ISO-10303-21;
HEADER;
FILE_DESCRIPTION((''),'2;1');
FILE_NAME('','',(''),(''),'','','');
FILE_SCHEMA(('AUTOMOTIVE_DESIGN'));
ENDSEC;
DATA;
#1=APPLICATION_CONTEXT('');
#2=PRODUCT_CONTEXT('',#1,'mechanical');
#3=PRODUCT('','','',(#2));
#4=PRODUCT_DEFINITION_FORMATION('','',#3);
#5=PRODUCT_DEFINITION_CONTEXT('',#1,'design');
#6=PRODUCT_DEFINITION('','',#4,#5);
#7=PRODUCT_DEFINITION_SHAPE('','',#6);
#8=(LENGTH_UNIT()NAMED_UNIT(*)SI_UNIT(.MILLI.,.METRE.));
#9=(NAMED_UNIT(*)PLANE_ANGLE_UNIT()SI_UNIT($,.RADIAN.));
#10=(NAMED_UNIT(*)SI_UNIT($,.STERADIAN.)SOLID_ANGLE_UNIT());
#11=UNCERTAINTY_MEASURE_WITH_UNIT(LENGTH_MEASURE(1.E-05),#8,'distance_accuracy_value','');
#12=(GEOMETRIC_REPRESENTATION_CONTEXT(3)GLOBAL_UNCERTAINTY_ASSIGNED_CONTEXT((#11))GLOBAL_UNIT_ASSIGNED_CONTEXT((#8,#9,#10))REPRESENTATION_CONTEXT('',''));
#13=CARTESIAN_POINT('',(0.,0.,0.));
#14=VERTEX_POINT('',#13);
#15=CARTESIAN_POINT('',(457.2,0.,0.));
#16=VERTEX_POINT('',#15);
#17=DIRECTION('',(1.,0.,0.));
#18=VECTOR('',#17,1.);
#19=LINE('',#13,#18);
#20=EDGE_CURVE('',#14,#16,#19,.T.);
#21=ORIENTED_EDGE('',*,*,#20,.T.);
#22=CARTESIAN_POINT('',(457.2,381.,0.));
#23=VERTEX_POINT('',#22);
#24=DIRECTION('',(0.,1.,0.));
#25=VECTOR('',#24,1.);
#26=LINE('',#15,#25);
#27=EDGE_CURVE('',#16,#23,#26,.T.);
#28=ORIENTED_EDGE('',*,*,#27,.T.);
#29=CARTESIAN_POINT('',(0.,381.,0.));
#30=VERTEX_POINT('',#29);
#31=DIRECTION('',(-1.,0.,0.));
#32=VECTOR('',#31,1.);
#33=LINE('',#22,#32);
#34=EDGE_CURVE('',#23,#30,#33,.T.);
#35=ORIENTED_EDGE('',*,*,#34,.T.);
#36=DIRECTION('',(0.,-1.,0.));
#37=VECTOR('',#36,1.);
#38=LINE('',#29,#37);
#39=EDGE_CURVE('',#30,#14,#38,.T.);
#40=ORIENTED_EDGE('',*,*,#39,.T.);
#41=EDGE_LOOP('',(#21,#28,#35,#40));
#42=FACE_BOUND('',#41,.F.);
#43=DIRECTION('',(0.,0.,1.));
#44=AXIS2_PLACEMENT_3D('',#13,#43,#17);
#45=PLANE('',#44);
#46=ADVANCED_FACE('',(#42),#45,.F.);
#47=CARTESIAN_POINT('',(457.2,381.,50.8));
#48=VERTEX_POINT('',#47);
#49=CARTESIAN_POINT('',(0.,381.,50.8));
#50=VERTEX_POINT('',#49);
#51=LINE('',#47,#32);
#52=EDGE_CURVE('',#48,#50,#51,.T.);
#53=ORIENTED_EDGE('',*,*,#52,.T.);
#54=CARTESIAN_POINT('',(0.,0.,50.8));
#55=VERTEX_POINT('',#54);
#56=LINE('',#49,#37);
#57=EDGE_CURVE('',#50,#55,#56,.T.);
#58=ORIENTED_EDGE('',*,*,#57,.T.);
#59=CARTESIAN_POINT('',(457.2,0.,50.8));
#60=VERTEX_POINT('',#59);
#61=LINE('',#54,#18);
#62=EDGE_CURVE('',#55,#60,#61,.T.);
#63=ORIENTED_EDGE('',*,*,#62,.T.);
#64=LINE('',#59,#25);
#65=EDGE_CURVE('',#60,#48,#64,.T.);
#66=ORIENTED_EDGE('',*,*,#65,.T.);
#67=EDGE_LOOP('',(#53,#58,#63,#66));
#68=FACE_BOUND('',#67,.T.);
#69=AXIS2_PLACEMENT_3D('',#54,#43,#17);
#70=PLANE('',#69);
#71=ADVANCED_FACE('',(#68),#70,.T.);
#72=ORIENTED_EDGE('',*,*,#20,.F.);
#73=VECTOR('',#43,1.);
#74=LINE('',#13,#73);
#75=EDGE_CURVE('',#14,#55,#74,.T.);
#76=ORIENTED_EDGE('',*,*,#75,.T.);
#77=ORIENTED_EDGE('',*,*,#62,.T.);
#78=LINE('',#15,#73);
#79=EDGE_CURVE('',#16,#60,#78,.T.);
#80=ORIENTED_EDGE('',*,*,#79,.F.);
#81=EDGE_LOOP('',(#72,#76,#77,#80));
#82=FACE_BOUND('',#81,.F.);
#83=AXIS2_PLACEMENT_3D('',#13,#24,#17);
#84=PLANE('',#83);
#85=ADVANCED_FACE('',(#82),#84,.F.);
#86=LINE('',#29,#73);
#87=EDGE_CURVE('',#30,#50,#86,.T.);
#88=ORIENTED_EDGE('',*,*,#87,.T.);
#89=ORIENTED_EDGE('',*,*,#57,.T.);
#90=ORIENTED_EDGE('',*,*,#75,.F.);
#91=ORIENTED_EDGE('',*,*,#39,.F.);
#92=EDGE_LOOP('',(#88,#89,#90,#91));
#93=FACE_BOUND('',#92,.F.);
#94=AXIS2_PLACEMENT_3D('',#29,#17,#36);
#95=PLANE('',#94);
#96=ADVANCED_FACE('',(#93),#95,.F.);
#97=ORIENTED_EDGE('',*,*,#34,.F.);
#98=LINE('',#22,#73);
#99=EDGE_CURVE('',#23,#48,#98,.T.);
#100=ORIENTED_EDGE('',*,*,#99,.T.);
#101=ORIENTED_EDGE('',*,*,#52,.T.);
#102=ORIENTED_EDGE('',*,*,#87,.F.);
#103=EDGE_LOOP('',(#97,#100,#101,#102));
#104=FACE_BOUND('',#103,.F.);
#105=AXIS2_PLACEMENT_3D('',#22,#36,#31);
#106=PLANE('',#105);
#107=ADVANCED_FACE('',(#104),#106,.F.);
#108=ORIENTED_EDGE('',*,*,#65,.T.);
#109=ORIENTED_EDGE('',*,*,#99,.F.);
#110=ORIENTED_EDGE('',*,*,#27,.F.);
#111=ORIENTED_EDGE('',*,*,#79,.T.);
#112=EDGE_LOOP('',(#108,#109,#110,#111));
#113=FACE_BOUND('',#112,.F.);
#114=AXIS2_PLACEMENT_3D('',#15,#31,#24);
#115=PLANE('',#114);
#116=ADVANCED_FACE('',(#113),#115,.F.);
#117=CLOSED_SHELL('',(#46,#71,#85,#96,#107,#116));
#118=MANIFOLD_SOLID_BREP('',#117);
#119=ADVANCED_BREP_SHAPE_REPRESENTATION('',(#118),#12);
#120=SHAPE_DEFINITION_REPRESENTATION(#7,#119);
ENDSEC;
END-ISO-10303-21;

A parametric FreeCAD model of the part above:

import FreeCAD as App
import Part
import Sketcher
from FreeCAD import Vector
Q = App.Units.Quantity

doc = App.newDocument("Part")
params = doc.addObject("Spreadsheet::Sheet", "Params")
for row, (alias, value) in enumerate([
    ("sketch1_width", "18 in"),
    ("sketch1_height", "15 in"),
    ("pad1_length", "2 in"),
], start=1):
    params.set(f"A{row}", alias)
    params.set(f"B{row}", "=" + value)
    params.setAlias(f"B{row}", alias)

body = doc.addObject("PartDesign::Body", "Body")

# Sketch on XY plane
sketch1 = doc.addObject("Sketcher::SketchObject", "Sketch")
body.addObject(sketch1)
sketch1.AttachmentSupport = (doc.XY_Plane, [""])
sketch1.MapMode = "FlatFace"
sketch1.addGeometry([
    Part.LineSegment(Vector(0, 381, 0), Vector(0, 0, 0)),
    Part.LineSegment(Vector(0, 0, 0), Vector(457, 0, 0)),
    Part.LineSegment(Vector(457, 0, 0), Vector(457, 381, 0)),
    Part.LineSegment(Vector(457, 381, 0), Vector(0, 381, 0)),
], False)
sketch1.addConstraint([
    Sketcher.Constraint("Coincident", 0, 2, 1, 1),
    Sketcher.Constraint("Coincident", 1, 2, 2, 1),
    Sketcher.Constraint("Coincident", 2, 2, 3, 1),
    Sketcher.Constraint("Coincident", 3, 2, 0, 1),
    Sketcher.Constraint("Vertical", 0),
    Sketcher.Constraint("Horizontal", 1),
    Sketcher.Constraint("Vertical", 2),
    Sketcher.Constraint("Horizontal", 3),
    Sketcher.Constraint("Coincident", 0, 2, -1, 1),
    Sketcher.Constraint("DistanceX", 1, 1, 1, 2, Q("18 in")),
    Sketcher.Constraint("DistanceY", 0, 2, 0, 1, Q("15 in")),
])
sketch1.setExpression("Constraints[9]", "Params.sketch1_width")
sketch1.setExpression("Constraints[10]", "Params.sketch1_height")
pad1 = doc.addObject("PartDesign::Pad", "Pad")
body.addObject(pad1)
pad1.Profile = sketch1
pad1.setExpression("Length", "Params.pad1_length")

doc.recompute()
